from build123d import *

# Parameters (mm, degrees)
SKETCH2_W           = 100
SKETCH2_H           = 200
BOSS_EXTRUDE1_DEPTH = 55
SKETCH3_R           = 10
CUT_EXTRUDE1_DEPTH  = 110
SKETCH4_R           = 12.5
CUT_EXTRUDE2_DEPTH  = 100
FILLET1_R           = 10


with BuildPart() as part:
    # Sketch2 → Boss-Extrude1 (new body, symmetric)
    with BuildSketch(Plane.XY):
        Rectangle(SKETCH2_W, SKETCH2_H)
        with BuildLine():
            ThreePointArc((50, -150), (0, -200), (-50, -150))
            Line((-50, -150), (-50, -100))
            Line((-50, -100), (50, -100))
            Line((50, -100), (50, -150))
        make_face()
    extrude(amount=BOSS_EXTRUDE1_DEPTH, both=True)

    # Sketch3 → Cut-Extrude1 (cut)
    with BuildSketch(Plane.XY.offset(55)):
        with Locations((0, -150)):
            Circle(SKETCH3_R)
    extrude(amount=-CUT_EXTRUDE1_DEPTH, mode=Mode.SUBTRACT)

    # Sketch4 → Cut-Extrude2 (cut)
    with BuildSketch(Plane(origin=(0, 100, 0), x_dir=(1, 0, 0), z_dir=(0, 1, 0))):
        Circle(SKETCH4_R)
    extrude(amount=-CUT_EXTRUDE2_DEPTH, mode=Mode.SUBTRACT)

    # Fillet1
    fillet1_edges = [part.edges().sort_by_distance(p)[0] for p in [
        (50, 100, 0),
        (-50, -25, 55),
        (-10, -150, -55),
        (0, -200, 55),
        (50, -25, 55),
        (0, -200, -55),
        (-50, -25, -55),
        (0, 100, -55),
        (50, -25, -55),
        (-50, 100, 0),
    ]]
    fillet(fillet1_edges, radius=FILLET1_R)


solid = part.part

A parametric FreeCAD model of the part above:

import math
import FreeCAD as App
import Part
import Sketcher
from FreeCAD import Vector


def edges_at(feature, points):
    """Names of the edges that pass closest to the given points."""
    edges = feature.Shape.Edges
    near = lambda p: min(range(len(edges)), key=lambda i: edges[i].distToShape(Part.Vertex(*p))[0])
    return sorted({f"Edge{near(p) + 1}" for p in points})

doc = App.newDocument("Part")
params = doc.addObject("Spreadsheet::Sheet", "Params")
for row, (alias, value) in enumerate([
    ("sketch1_radius", "50 mm"),
    ("sketch1_height", "250 mm"),
    ("pad1_length", "110 mm"),
    ("sketch2_diameter", "20 mm"),
    ("pocket1_length", "110 mm"),
    ("sketch3_diameter", "25 mm"),
    ("pocket2_length", "100 mm"),
    ("fillet_radius", "10 mm"),
], start=1):
    params.set(f"A{row}", alias)
    params.set(f"B{row}", "=" + value)
    params.setAlias(f"B{row}", alias)

body = doc.addObject("PartDesign::Body", "Body")

sketch1 = body.newObject("Sketcher::SketchObject", "Sketch")
sketch1.AttachmentSupport = (doc.getObject("XY_Plane"), [""])
sketch1.MapMode = "FlatFace"
sketch1.addGeometry(Part.LineSegment(Vector(-50, 100, 0), Vector(-50, -150, 0)), False)
sketch1.addGeometry(Part.ArcOfCircle(Part.Circle(Vector(0, -150, 0), Vector(0, 0, 1), 50), math.radians(180), math.radians(360)), False)
sketch1.addGeometry(Part.LineSegment(Vector(50, -150, 0), Vector(50, 100, 0)), False)
sketch1.addGeometry(Part.LineSegment(Vector(50, 100, 0), Vector(-50, 100, 0)), False)
sketch1.addConstraint(Sketcher.Constraint("Tangent", 0, 2, 1, 1))
sketch1.addConstraint(Sketcher.Constraint("Tangent", 1, 2, 2, 1))
sketch1.addConstraint(Sketcher.Constraint("Coincident", 2, 2, 3, 1))
sketch1.addConstraint(Sketcher.Constraint("Coincident", 3, 2, 0, 1))
sketch1.addConstraint(Sketcher.Constraint("Vertical", 0))
sketch1.addConstraint(Sketcher.Constraint("Vertical", 2))
sketch1.addConstraint(Sketcher.Constraint("Horizontal", 3))
sketch1.addConstraint(Sketcher.Constraint("PointOnObject", 1, 3, -2))
sketch1.addConstraint(Sketcher.Constraint("Radius", 1, 50.0))
sketch1.addConstraint(Sketcher.Constraint("DistanceY", 0, 2, 0, 1, 250.0))
sketch1.addConstraint(Sketcher.Constraint("DistanceY", 1, 3, -1, 1, 150.0))
sketch1.setExpression("Constraints[8]", "Params.sketch1_radius")
sketch1.setExpression("Constraints[9]", "Params.sketch1_height")
pad1 = body.newObject("PartDesign::Pad", "Pad")
pad1.Profile = sketch1
pad1.setExpression("Length", "Params.pad1_length")
pad1.Midplane = True

sketch2 = body.newObject("Sketcher::SketchObject", "Sketch001")
sketch2.AttachmentSupport = (doc.getObject("XY_Plane"), [""])
sketch2.MapMode = "FlatFace"
sketch2.AttachmentOffset = App.Placement(Vector(0, 0, 55), App.Rotation())
sketch2.addGeometry(Part.Circle(Vector(0, -150, 0), Vector(0, 0, 1), 10), False)
sketch2.addConstraint(Sketcher.Constraint("PointOnObject", 0, 3, -2))
sketch2.addConstraint(Sketcher.Constraint("Diameter", 0, 20.0))
sketch2.addConstraint(Sketcher.Constraint("DistanceY", 0, 3, -1, 1, 150.0))
sketch2.setExpression("Constraints[1]", "Params.sketch2_diameter")
pocket1 = body.newObject("PartDesign::Pocket", "Pocket")
pocket1.Profile = sketch2
pocket1.setExpression("Length", "Params.pocket1_length")

sketch3 = body.newObject("Sketcher::SketchObject", "Sketch002")
sketch3.AttachmentSupport = (doc.getObject("XZ_Plane"), [""])
sketch3.MapMode = "FlatFace"
sketch3.AttachmentOffset = App.Placement(Vector(0, 0, -100), App.Rotation())
sketch3.addGeometry(Part.Circle(Vector(0, 0, 0), Vector(0, 0, 1), 12), False)
sketch3.addConstraint(Sketcher.Constraint("Coincident", 0, 3, -1, 1))
sketch3.addConstraint(Sketcher.Constraint("Diameter", 0, 25.0))
sketch3.setExpression("Constraints[1]", "Params.sketch3_diameter")
pocket2 = body.newObject("PartDesign::Pocket", "Pocket001")
pocket2.Profile = sketch3
pocket2.setExpression("Length", "Params.pocket2_length")
pocket2.Reversed = True
doc.recompute()

fillet = body.newObject("PartDesign::Fillet", "Fillet")
fillet.Base = (pocket2, edges_at(pocket2, [
    (50, 100, 0),
    (-50, -25, 55),
    (-10, -150, -55),
    (0, -200, 55),
    (50, -25, 55),
    (0, -200, -55),
    (-50, -25, -55),
    (0, 100, -55),
    (50, -25, -55),
    (-50, 100, 0),
]))
fillet.setExpression("Radius", "Params.fillet_radius")

doc.recompute()
